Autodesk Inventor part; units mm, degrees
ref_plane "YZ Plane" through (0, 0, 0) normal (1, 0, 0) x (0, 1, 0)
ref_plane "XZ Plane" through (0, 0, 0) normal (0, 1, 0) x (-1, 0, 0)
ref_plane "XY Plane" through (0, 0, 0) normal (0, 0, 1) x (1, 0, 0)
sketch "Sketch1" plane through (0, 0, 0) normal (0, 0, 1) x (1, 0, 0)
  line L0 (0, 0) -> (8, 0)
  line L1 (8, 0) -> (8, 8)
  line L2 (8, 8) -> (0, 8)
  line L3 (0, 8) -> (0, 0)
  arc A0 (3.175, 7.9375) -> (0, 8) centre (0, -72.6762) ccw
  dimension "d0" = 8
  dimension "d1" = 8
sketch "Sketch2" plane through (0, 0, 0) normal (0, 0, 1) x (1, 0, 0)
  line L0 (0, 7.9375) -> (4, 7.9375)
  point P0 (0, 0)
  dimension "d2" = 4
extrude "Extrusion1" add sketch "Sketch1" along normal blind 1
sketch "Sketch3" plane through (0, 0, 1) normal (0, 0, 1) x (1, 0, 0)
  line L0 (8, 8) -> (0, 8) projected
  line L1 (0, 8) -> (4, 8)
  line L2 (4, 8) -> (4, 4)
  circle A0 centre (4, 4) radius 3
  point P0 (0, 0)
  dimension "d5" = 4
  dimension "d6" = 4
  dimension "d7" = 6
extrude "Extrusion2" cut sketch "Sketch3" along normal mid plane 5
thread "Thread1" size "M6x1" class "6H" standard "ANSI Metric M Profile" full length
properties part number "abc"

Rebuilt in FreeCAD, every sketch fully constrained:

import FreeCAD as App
import Part
import Sketcher

V = App.Vector
Q = App.Units.Quantity

doc = App.newDocument("Part")
body = doc.addObject("PartDesign::Body", "Body")

sketch1 = doc.addObject("Sketcher::SketchObject", "Sketch")
body.addObject(sketch1)
sketch1.AttachmentSupport = (doc.XY_Plane, [""])
sketch1.MapMode = "FlatFace"
sketch1.addGeometry(Part.LineSegment(V(0, 8, 0), V(0, 0, 0)), False)
sketch1.addGeometry(Part.LineSegment(V(0, 0, 0), V(8, 0, 0)), False)
sketch1.addGeometry(Part.LineSegment(V(8, 0, 0), V(8, 8, 0)), False)
sketch1.addGeometry(Part.LineSegment(V(8, 8, 0), V(0, 8, 0)), False)
sketch1.addConstraint(Sketcher.Constraint("Coincident", 0, 2, 1, 1))
sketch1.addConstraint(Sketcher.Constraint("Coincident", 1, 2, 2, 1))
sketch1.addConstraint(Sketcher.Constraint("Coincident", 2, 2, 3, 1))
sketch1.addConstraint(Sketcher.Constraint("Coincident", 3, 2, 0, 1))
sketch1.addConstraint(Sketcher.Constraint("Vertical", 0))
sketch1.addConstraint(Sketcher.Constraint("Horizontal", 1))
sketch1.addConstraint(Sketcher.Constraint("Vertical", 2))
sketch1.addConstraint(Sketcher.Constraint("Horizontal", 3))
sketch1.addConstraint(Sketcher.Constraint("Coincident", 0, 2, -1, 1))
sketch1.addConstraint(Sketcher.Constraint("Equal", 3, 0))
sketch1.addConstraint(Sketcher.Constraint("DistanceX", 1, 1, 1, 2, Q("8 mm")))
pad1 = doc.addObject("PartDesign::Pad", "Pad")
body.addObject(pad1)
pad1.Profile = sketch1
pad1.Length = 1

sketch2 = doc.addObject("Sketcher::SketchObject", "Sketch001")
body.addObject(sketch2)
sketch2.AttachmentSupport = (doc.XY_Plane, [""])
sketch2.MapMode = "FlatFace"
sketch2.AttachmentOffset = App.Placement(V(0, 0, 1), App.Rotation())
sketch2.addGeometry(Part.Circle(V(4, 4, 0), V(0, 0, 1), 3), False)
sketch2.addConstraint(Sketcher.Constraint("Diameter", 0, Q("6 mm")))
sketch2.addConstraint(Sketcher.Constraint("DistanceX", -1, 1, 0, 3, Q("4 mm")))
sketch2.addConstraint(Sketcher.Constraint("DistanceY", -1, 1, 0, 3, Q("4 mm")))
pocket1 = doc.addObject("PartDesign::Pocket", "Pocket")
body.addObject(pocket1)
pocket1.Profile = sketch2
pocket1.Length = 5
pocket1.Midplane = True

doc.recompute()
